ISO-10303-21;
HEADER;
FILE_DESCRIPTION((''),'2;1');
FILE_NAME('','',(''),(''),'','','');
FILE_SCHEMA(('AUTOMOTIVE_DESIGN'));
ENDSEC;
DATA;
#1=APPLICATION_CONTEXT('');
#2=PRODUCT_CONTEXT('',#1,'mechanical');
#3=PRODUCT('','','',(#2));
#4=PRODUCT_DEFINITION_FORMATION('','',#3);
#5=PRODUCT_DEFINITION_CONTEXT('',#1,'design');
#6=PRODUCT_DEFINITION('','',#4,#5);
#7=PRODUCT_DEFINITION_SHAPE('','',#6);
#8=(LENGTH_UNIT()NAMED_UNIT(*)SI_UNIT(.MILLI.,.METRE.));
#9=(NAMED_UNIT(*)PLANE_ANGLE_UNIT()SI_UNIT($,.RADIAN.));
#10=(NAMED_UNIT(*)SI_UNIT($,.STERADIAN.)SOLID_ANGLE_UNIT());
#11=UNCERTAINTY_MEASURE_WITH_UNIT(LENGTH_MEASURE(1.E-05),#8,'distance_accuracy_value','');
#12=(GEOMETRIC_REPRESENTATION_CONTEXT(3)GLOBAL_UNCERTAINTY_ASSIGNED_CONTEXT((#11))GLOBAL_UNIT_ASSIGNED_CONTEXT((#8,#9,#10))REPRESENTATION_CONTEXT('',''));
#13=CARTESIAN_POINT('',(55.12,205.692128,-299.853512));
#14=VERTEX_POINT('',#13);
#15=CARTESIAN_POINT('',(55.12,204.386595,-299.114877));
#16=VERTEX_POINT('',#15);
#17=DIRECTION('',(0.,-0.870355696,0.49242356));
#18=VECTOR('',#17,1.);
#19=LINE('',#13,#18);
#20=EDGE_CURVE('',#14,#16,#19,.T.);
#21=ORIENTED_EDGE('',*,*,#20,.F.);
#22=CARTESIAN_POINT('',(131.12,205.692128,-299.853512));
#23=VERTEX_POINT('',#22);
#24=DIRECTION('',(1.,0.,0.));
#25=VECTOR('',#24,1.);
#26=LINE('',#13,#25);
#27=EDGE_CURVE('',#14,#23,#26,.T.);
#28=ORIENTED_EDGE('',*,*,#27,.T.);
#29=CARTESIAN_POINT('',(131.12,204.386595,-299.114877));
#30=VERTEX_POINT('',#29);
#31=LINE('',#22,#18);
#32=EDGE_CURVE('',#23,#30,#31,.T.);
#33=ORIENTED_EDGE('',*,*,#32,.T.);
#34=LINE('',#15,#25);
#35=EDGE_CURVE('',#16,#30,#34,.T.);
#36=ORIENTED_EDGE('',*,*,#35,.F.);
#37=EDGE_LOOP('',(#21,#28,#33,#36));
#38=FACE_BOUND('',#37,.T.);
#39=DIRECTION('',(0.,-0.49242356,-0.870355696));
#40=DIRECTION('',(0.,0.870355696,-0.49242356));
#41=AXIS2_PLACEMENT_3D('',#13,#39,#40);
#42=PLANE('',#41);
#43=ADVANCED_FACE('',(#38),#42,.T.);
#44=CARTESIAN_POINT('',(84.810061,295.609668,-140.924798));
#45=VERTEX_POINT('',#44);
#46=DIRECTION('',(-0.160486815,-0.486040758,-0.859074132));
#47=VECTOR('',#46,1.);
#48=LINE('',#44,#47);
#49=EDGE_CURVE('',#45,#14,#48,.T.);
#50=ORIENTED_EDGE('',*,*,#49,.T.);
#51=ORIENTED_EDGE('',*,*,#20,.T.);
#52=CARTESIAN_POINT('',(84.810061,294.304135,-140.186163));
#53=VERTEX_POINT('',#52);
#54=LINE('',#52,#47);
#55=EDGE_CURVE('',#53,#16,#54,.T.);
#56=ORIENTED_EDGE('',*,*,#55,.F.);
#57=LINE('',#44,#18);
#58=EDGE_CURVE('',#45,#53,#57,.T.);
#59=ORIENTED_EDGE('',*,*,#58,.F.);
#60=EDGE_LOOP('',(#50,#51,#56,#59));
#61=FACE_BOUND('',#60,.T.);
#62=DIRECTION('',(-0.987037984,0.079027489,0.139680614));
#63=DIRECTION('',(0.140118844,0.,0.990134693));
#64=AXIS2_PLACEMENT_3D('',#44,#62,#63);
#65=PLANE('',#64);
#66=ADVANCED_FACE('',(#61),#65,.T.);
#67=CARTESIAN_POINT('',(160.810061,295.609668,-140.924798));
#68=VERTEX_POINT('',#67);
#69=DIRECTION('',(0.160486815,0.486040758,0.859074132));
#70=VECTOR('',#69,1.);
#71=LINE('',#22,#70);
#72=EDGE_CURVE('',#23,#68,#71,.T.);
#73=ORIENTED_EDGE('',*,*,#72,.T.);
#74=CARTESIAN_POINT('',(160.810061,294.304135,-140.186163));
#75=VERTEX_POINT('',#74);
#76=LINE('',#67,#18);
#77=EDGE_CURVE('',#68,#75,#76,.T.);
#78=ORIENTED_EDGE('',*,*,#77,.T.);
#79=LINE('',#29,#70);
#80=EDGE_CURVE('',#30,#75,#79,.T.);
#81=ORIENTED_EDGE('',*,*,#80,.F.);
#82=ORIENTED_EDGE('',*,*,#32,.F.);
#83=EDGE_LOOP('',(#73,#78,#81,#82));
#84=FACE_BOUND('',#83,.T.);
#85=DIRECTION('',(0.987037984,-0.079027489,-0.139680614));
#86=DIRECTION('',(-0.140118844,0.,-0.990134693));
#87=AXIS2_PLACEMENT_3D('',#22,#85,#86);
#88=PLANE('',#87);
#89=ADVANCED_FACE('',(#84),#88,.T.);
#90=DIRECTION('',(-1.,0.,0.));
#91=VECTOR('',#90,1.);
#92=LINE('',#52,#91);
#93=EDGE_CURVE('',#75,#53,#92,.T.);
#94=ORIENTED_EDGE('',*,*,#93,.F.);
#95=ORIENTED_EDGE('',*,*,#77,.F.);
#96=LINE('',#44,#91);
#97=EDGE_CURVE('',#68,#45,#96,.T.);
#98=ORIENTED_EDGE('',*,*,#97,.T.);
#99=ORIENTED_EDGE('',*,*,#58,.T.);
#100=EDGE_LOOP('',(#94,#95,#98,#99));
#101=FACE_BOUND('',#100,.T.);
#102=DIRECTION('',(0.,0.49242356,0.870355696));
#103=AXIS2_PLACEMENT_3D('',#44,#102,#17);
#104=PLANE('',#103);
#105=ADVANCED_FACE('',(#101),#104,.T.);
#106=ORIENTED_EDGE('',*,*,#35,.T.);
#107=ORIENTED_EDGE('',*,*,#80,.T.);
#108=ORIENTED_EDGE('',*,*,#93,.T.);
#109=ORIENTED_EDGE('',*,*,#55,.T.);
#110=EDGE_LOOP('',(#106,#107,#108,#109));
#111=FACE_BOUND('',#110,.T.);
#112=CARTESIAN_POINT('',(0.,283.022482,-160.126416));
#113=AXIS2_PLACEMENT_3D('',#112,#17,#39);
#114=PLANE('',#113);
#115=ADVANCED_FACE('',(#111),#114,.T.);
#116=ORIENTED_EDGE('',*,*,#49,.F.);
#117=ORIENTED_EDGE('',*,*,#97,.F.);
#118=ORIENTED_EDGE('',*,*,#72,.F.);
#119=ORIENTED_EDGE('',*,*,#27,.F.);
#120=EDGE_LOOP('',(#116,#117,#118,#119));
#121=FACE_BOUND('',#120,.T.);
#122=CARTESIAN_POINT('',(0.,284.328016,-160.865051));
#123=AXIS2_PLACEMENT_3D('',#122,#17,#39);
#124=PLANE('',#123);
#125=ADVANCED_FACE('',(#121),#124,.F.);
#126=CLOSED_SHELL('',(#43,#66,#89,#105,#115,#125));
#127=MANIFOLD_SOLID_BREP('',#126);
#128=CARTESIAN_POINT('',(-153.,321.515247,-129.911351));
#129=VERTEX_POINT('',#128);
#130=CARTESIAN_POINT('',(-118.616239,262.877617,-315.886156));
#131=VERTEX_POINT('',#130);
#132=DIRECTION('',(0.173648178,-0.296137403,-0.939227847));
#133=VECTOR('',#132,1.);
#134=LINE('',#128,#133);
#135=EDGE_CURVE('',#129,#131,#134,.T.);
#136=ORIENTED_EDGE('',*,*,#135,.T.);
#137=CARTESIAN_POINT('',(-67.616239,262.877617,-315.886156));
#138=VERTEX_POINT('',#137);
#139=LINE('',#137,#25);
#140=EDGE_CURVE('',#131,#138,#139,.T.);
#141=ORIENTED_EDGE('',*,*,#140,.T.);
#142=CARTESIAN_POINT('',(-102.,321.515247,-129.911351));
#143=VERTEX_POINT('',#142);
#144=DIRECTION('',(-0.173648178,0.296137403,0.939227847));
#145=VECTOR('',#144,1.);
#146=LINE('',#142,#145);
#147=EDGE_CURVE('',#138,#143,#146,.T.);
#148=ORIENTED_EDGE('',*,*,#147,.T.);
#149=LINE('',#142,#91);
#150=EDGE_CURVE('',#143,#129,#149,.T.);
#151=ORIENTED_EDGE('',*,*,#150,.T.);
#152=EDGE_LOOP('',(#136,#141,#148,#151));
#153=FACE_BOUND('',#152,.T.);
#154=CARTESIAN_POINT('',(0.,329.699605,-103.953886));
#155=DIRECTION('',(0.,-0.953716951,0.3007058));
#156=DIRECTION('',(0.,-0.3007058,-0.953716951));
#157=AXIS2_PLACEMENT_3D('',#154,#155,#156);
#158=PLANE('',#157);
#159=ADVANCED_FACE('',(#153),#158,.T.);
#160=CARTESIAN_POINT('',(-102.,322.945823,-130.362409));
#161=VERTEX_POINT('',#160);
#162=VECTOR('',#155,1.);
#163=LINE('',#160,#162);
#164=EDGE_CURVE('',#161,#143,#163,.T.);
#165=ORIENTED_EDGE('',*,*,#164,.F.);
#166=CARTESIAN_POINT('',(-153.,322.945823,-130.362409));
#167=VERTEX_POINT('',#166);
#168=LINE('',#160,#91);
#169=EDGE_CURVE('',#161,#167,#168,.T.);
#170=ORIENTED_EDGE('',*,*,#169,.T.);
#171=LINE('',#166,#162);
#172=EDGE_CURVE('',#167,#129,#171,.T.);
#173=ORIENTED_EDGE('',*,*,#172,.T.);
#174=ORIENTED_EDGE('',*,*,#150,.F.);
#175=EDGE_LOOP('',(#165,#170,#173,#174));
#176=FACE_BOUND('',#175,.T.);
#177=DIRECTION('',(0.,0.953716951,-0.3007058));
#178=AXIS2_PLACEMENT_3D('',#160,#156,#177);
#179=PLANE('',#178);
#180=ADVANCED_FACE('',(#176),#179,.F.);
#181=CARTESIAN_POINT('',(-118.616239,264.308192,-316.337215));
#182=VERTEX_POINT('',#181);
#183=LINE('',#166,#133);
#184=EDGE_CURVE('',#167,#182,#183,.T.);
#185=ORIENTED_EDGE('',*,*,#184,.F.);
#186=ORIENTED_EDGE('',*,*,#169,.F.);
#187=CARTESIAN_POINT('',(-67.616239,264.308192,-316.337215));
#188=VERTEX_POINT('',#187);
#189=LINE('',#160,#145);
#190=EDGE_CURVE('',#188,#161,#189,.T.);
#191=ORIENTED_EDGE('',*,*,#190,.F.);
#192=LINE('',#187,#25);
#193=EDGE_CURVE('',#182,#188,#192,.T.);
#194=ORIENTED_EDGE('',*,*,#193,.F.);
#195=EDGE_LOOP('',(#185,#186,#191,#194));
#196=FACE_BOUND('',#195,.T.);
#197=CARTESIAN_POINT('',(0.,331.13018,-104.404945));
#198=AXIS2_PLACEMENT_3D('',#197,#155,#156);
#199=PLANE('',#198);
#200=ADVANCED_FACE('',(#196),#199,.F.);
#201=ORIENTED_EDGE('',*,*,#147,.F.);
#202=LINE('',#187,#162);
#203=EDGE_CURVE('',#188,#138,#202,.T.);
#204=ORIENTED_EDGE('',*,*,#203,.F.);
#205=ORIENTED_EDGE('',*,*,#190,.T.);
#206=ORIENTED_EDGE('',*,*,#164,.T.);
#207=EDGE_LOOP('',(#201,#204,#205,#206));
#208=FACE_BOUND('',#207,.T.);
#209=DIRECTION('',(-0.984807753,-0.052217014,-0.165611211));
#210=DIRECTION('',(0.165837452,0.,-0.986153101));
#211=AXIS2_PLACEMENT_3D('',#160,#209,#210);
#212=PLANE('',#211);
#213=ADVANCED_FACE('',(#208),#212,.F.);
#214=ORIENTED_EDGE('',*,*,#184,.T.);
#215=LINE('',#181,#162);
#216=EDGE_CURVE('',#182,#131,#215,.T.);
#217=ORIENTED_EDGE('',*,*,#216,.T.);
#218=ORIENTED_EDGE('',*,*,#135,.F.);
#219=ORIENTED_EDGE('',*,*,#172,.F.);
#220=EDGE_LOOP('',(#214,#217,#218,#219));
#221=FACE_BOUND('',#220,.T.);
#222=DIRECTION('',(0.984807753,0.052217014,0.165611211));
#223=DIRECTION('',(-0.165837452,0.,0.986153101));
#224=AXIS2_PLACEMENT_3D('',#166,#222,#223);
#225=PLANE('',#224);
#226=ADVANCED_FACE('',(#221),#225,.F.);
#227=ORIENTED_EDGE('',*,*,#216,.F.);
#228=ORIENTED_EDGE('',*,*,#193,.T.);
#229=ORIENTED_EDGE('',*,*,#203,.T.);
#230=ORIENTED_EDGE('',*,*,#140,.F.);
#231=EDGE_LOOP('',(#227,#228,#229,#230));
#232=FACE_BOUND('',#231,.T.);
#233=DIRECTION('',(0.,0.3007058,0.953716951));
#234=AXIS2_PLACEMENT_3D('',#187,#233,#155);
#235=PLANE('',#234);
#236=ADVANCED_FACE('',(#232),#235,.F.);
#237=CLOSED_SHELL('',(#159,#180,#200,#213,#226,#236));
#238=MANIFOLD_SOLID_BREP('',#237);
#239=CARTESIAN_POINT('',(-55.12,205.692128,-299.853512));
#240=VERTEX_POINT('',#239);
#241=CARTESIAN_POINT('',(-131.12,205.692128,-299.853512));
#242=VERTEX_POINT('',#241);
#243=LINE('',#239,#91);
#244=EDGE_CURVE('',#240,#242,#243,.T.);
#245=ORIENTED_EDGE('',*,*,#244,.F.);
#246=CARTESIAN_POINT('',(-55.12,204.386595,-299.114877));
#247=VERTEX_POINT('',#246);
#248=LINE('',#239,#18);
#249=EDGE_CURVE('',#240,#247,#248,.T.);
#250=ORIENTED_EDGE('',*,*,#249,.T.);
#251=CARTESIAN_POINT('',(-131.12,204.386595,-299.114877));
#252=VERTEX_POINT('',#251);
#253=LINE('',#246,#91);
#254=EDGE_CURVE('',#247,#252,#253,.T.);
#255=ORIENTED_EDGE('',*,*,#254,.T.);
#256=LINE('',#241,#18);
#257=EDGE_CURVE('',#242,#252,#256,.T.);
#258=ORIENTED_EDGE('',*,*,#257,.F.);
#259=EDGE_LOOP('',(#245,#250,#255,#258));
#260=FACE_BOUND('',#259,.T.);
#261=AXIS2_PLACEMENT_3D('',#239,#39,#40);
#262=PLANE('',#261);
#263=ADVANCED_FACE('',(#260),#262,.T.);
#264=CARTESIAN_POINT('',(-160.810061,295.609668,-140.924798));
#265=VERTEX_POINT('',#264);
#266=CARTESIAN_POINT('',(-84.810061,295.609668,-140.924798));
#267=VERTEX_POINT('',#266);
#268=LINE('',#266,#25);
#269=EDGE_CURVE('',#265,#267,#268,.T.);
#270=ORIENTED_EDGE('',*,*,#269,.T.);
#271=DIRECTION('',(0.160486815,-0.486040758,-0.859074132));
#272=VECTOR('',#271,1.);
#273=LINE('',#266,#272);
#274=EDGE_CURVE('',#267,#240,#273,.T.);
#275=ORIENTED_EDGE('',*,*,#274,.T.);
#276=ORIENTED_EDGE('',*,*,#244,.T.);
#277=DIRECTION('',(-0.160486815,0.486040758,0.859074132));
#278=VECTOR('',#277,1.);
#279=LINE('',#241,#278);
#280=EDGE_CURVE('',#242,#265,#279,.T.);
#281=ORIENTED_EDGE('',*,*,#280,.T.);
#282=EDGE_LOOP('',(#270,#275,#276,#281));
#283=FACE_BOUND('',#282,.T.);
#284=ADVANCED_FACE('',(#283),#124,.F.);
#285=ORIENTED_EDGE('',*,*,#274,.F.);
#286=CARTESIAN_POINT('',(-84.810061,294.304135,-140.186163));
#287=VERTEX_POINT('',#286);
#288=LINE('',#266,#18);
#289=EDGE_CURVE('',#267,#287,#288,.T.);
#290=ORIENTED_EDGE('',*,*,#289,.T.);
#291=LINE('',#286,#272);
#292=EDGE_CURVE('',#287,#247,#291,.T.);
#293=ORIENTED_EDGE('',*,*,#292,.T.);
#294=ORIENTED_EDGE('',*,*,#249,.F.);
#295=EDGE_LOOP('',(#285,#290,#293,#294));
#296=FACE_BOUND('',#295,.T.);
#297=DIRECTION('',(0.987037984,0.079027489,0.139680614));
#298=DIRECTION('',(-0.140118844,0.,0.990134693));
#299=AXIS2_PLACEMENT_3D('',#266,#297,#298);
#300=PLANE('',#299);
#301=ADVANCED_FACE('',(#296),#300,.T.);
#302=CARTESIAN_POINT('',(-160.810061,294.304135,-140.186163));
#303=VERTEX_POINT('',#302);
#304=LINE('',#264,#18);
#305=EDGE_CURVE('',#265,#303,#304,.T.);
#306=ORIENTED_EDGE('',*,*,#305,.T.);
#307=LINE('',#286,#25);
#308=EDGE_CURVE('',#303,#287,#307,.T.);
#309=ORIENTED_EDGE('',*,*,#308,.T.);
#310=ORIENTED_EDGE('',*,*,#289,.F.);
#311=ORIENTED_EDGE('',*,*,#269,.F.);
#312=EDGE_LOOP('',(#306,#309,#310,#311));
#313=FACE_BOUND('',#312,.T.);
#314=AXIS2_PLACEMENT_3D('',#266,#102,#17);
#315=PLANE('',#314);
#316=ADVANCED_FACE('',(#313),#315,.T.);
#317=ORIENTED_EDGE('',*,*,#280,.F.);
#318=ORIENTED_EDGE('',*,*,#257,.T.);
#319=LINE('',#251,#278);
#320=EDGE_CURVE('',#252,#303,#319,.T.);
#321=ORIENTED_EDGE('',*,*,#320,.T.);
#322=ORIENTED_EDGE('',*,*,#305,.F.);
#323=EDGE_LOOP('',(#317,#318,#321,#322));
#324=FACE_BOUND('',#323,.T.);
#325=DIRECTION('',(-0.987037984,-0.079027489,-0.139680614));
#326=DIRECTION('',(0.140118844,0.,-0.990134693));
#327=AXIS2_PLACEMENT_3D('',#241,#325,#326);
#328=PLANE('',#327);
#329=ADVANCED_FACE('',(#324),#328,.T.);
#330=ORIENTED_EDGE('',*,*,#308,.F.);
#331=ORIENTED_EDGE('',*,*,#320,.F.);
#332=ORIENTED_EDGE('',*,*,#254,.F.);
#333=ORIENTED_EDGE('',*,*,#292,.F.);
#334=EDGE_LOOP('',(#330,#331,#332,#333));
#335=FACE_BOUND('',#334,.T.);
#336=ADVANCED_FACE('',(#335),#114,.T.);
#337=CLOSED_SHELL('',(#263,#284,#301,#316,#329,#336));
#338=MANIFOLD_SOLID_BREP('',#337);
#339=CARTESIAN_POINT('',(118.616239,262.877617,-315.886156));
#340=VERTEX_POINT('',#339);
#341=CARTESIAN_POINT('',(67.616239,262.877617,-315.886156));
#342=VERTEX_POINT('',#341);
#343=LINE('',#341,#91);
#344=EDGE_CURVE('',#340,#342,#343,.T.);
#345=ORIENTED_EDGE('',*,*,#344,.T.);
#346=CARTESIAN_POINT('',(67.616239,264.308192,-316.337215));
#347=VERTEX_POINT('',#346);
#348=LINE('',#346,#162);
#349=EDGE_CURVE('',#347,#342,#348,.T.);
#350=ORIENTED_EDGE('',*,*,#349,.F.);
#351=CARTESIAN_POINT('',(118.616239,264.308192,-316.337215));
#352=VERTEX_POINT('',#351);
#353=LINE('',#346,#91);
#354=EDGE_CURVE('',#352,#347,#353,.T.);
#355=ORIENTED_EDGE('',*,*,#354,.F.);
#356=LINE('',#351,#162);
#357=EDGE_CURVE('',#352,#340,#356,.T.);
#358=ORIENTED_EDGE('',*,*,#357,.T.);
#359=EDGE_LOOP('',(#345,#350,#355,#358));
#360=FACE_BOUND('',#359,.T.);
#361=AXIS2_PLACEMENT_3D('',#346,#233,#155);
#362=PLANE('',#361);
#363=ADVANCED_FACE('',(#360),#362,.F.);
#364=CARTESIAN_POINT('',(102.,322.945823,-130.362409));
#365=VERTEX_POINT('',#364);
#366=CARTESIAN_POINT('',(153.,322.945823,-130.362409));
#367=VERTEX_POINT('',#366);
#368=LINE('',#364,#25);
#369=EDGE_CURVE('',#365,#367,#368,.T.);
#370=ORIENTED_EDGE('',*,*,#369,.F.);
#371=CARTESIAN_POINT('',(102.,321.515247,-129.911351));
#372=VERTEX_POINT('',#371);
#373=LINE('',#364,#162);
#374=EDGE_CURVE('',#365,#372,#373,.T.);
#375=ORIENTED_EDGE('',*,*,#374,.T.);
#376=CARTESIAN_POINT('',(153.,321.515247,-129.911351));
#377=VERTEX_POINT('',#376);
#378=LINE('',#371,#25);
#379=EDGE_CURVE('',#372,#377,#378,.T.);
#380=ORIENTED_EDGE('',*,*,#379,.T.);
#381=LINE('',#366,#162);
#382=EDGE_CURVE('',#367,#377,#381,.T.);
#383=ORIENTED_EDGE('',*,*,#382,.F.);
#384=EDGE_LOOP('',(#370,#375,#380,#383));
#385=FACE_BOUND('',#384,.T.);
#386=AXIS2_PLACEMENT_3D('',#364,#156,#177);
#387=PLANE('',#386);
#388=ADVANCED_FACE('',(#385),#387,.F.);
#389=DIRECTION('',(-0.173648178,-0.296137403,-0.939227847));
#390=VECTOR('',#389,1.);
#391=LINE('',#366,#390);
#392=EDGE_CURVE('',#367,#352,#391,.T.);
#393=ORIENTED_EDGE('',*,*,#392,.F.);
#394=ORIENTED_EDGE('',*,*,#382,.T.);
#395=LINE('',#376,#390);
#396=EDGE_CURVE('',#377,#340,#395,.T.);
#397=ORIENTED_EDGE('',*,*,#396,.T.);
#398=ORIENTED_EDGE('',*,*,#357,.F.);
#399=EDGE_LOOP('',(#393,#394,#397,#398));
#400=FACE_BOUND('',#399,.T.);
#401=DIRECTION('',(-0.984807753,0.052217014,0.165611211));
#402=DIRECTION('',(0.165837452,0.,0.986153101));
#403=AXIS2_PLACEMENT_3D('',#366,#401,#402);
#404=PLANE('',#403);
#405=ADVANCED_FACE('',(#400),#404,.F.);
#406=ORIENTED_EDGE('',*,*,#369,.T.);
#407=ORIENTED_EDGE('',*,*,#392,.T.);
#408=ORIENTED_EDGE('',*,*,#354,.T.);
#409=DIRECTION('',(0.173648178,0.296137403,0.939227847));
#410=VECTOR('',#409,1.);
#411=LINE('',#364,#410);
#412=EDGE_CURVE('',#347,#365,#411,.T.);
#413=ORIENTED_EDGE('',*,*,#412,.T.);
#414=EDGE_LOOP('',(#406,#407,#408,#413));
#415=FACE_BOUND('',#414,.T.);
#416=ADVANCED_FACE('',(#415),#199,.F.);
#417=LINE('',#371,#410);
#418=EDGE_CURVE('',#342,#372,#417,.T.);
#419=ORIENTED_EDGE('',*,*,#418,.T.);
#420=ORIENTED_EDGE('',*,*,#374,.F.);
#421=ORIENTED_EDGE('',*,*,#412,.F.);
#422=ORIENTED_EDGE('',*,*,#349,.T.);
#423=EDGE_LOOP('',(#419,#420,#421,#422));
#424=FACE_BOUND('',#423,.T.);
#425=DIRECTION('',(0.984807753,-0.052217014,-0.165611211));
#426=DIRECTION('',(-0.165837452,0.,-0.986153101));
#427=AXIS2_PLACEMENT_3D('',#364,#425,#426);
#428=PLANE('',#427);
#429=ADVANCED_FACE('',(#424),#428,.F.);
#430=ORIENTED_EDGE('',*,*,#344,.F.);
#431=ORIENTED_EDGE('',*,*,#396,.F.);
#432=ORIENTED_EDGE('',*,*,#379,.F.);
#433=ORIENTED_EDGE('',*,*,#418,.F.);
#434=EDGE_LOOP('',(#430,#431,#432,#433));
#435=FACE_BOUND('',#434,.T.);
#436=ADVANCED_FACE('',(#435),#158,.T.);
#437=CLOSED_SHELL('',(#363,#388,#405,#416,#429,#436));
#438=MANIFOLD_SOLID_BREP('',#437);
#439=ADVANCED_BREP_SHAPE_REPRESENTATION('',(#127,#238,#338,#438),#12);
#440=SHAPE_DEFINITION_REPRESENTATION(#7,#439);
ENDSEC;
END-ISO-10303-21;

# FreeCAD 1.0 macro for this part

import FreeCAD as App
import Part
import Sketcher
from FreeCAD import Vector
Q = App.Units.Quantity

doc = App.newDocument("Part")
body = doc.addObject("PartDesign::Body", "Body")

# Sketch on an angled plane
sketch1 = body.newObject("Sketcher::SketchObject", "Sketch")
sketch1.Placement = App.Placement(Vector(0, 329.699605, -103.953886), App.Rotation(Vector(1, 0, 0), Vector(0, -0.3007058, -0.953716951), Vector(0, 0.953716951, -0.3007058), "ZXY"))
sketch1.addGeometry(Part.LineSegment(Vector(102, 27, 0), Vector(153, 27, 0)), False)
sketch1.addGeometry(Part.LineSegment(Vector(153, 27, 0), Vector(119, 222, 0)), False)
sketch1.addGeometry(Part.LineSegment(Vector(119, 222, 0), Vector(68, 222, 0)), False)
sketch1.addGeometry(Part.LineSegment(Vector(68, 222, 0), Vector(102, 27, 0)), False)
sketch1.addConstraint(Sketcher.Constraint("Coincident", 0, 2, 1, 1))
sketch1.addConstraint(Sketcher.Constraint("Coincident", 1, 2, 2, 1))
sketch1.addConstraint(Sketcher.Constraint("Coincident", 2, 2, 3, 1))
sketch1.addConstraint(Sketcher.Constraint("Coincident", 3, 2, 0, 1))
sketch1.addConstraint(Sketcher.Constraint("Horizontal", 0))
sketch1.addConstraint(Sketcher.Constraint("Horizontal", 2))
sketch1.addConstraint(Sketcher.Constraint("Parallel", 1, 3))
sketch1.addConstraint(Sketcher.Constraint("DistanceX", 0, 1, 0, 2, Q("51 mm")))
sketch1.addConstraint(Sketcher.Constraint("Angle", 1, Q("100 deg")))
sketch1.addConstraint(Sketcher.Constraint("DistanceX", -1, 1, 0, 2, Q("153 mm")))
sketch1.addConstraint(Sketcher.Constraint("DistanceY", 0, 2, 1, 2, Q("195 mm")))
sketch1.addConstraint(Sketcher.Constraint("DistanceY", -1, 1, 0, 2, Q("27.217158 mm")))
pad1 = body.newObject("PartDesign::Pad", "Pad")
pad1.Profile = sketch1
pad1.Length = 1.5
body2 = doc.addObject("PartDesign::Body", "Body001")

# Sketch on an angled plane
sketch2 = body2.newObject("Sketcher::SketchObject", "Sketch001")
sketch2.Placement = App.Placement(Vector(0, 283.022482, -160.126416), App.Rotation(Vector(1, 0, 0), Vector(0, 0.49242356, 0.870355696), Vector(0, -0.870355696, 0.49242356), "ZXY"))
sketch2.addGeometry(Part.LineSegment(Vector(161, 23, 0), Vector(85, 23, 0)), False)
sketch2.addGeometry(Part.LineSegment(Vector(85, 23, 0), Vector(55, -160, 0)), False)
sketch2.addGeometry(Part.LineSegment(Vector(55, -160, 0), Vector(131, -160, 0)), False)
sketch2.addGeometry(Part.LineSegment(Vector(131, -160, 0), Vector(161, 23, 0)), False)
sketch2.addConstraint(Sketcher.Constraint("Coincident", 0, 2, 1, 1))
sketch2.addConstraint(Sketcher.Constraint("Coincident", 1, 2, 2, 1))
sketch2.addConstraint(Sketcher.Constraint("Coincident", 2, 2, 3, 1))
sketch2.addConstraint(Sketcher.Constraint("Coincident", 3, 2, 0, 1))
sketch2.addConstraint(Sketcher.Constraint("Horizontal", 0))
sketch2.addConstraint(Sketcher.Constraint("Horizontal", 2))
sketch2.addConstraint(Sketcher.Constraint("Parallel", 1, 3))
sketch2.addConstraint(Sketcher.Constraint("DistanceX", 0, 2, 0, 1, Q("76 mm")))
sketch2.addConstraint(Sketcher.Constraint("Distance", 1, Q("185 mm")))
sketch2.addConstraint(Sketcher.Constraint("DistanceX", -1, 1, 1, 2, Q("55.12 mm")))
sketch2.addConstraint(Sketcher.Constraint("DistanceX", -1, 1, 0, 2, Q("84.810061 mm")))
sketch2.addConstraint(Sketcher.Constraint("DistanceY", -1, 1, 0, 2, Q("22.910465 mm")))
pad2 = body2.newObject("PartDesign::Pad", "Pad001")
pad2.Profile = sketch2
pad2.Length = 1.5
pad2.Reversed = True
body3 = doc.addObject("PartDesign::Body", "Body002")
doc.recompute()

mirroring = doc.addObject("Part::Mirroring", "Mirroring")
mirroring.Source = body
mirroring.Base = Vector(0, 0, 0)
mirroring.Normal = Vector(1, 0, 0)
body3.BaseFeature = mirroring
doc.recompute()
body4 = doc.addObject("PartDesign::Body", "Body003")
doc.recompute()

mirroring2 = doc.addObject("Part::Mirroring", "Mirroring001")
mirroring2.Source = body2
mirroring2.Base = Vector(0, 0, 0)
mirroring2.Normal = Vector(1, 0, 0)
body4.BaseFeature = mirroring2
doc.recompute()
mirroring.Visibility = False
mirroring2.Visibility = False

doc.recompute()
